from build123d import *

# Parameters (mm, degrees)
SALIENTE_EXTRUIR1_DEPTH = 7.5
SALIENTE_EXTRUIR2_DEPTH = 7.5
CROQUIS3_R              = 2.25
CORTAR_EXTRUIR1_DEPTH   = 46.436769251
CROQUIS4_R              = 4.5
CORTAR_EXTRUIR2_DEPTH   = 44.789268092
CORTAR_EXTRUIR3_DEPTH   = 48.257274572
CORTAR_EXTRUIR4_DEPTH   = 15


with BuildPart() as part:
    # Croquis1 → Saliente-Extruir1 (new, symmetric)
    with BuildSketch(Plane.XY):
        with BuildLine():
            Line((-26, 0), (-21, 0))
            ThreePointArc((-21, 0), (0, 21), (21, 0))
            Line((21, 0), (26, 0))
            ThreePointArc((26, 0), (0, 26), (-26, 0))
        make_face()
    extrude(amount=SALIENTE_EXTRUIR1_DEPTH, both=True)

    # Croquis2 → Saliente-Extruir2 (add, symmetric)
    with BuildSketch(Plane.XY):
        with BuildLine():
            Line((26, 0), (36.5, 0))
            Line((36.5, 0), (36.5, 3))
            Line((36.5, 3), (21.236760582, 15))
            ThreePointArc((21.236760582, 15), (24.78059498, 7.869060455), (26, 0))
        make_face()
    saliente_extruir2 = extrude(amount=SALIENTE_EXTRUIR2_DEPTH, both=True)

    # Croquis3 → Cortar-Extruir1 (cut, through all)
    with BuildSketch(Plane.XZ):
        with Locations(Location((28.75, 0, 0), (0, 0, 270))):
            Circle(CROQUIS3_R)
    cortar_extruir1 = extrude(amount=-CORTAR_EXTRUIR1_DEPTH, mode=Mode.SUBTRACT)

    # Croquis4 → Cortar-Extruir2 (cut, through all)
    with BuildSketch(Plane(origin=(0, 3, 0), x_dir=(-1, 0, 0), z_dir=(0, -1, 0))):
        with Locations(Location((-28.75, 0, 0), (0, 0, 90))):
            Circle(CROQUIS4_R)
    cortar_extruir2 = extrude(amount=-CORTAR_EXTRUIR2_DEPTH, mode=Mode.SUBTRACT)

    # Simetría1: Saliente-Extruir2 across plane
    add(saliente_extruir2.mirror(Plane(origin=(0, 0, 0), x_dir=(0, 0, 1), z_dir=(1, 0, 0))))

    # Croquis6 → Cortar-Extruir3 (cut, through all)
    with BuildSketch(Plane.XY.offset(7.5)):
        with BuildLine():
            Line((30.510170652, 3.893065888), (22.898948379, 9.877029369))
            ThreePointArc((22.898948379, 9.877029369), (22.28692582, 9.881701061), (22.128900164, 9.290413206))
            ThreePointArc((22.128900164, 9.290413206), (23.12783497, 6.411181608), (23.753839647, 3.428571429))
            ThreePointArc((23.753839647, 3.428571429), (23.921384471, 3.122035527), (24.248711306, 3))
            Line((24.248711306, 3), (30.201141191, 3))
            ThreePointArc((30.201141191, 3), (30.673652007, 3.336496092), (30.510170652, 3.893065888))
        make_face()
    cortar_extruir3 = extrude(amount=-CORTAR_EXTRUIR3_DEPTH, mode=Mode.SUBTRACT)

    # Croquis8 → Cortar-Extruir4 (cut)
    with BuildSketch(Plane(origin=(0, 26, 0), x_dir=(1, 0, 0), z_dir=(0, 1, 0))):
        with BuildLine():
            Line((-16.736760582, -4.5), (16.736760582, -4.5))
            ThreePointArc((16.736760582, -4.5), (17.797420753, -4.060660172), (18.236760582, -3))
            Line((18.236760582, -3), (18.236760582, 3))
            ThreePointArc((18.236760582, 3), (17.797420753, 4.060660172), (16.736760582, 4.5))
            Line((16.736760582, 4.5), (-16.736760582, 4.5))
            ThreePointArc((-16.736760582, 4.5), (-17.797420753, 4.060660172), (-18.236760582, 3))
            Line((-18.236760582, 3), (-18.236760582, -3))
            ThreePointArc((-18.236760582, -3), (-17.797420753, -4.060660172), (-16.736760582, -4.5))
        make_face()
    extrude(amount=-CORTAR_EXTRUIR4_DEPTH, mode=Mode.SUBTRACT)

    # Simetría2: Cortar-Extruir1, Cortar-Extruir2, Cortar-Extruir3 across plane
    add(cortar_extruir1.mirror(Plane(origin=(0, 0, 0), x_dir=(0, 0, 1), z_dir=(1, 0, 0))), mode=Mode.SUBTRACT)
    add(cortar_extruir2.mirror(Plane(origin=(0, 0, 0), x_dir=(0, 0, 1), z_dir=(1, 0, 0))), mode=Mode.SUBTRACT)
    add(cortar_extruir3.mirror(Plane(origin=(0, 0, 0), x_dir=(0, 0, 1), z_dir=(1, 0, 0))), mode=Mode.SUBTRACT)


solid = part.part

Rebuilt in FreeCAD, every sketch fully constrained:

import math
import FreeCAD as App
import Part
import Sketcher

V = App.Vector
Q = App.Units.Quantity

doc = App.newDocument("Part")
params = doc.addObject("Spreadsheet::Sheet", "Params")
for row, (alias, value) in enumerate([
    ("sketch1_radius", "21 mm"),
    ("sketch1_radius2", "26 mm"),
    ("pad1_length", "15 mm"),
    ("sketch2_radius", "26 mm"),
    ("sketch2_height", "3 mm"),
    ("sketch2_width", "10.5 mm"),
    ("pad2_length", "15 mm"),
    ("sketch3_diameter", "4.5 mm"),
    ("sketch4_diameter", "9 mm"),
    ("sketch5_radius", "24 mm"),
    ("sketch5_radius2", "0.5 mm"),
    ("sketch6_radius", "1.5 mm"),
    ("sketch6_height", "6 mm"),
    ("pocket4_length", "15 mm"),
], start=1):
    params.set(f"A{row}", alias)
    params.set(f"B{row}", "=" + value)
    params.setAlias(f"B{row}", alias)

body = doc.addObject("PartDesign::Body", "Body")

sketch1 = doc.addObject("Sketcher::SketchObject", "Sketch")
body.addObject(sketch1)
sketch1.AttachmentSupport = (doc.XY_Plane, [""])
sketch1.MapMode = "FlatFace"
sketch1.addGeometry(Part.LineSegment(V(-26, 0, 0), V(-21, 0, 0)), False)
sketch1.addGeometry(Part.ArcOfCircle(Part.Circle(V(0, 0, 0), V(0, 0, 1), 21), math.radians(0), math.radians(180)), False)
sketch1.addGeometry(Part.LineSegment(V(21, 0, 0), V(26, 0, 0)), False)
sketch1.addGeometry(Part.ArcOfCircle(Part.Circle(V(0, 0, 0), V(0, 0, 1), 26), math.radians(0), math.radians(180)), False)
sketch1.addConstraint(Sketcher.Constraint("Coincident", 0, 2, 1, 2))
sketch1.addConstraint(Sketcher.Constraint("Coincident", 1, 1, 2, 1))
sketch1.addConstraint(Sketcher.Constraint("Coincident", 2, 2, 3, 1))
sketch1.addConstraint(Sketcher.Constraint("Coincident", 3, 2, 0, 1))
sketch1.addConstraint(Sketcher.Constraint("Horizontal", 0))
sketch1.addConstraint(Sketcher.Constraint("Horizontal", 2))
sketch1.addConstraint(Sketcher.Constraint("Coincident", 1, 3, -1, 1))
sketch1.addConstraint(Sketcher.Constraint("Coincident", 3, 3, -1, 1))
sketch1.addConstraint(Sketcher.Constraint("PointOnObject", 0, 2, -1))
sketch1.addConstraint(Sketcher.Constraint("PointOnObject", 1, 1, -1))
sketch1.addConstraint(Sketcher.Constraint("Radius", 1, Q("21 mm")))
sketch1.addConstraint(Sketcher.Constraint("Radius", 3, Q("26 mm")))
sketch1.setExpression("Constraints[10]", "Params.sketch1_radius")
sketch1.setExpression("Constraints[11]", "Params.sketch1_radius2")
pad1 = doc.addObject("PartDesign::Pad", "Pad")
body.addObject(pad1)
pad1.Profile = sketch1
pad1.setExpression("Length", "Params.pad1_length")
pad1.Midplane = True

sketch2 = doc.addObject("Sketcher::SketchObject", "Sketch001")
body.addObject(sketch2)
sketch2.AttachmentSupport = (doc.XY_Plane, [""])
sketch2.MapMode = "FlatFace"
sketch2.addGeometry(Part.LineSegment(V(26, 0, 0), V(36.5, 0, 0)), False)
sketch2.addGeometry(Part.LineSegment(V(36.5, 0, 0), V(36.5, 3, 0)), False)
sketch2.addGeometry(Part.LineSegment(V(36.5, 3, 0), V(21.2, 15, 0)), False)
sketch2.addGeometry(Part.ArcOfCircle(Part.Circle(V(0, 0, 0), V(0, 0, 1), 26), math.radians(0), math.radians(35)), False)
sketch2.addConstraint(Sketcher.Constraint("Coincident", 0, 2, 1, 1))
sketch2.addConstraint(Sketcher.Constraint("Coincident", 1, 2, 2, 1))
sketch2.addConstraint(Sketcher.Constraint("Coincident", 2, 2, 3, 2))
sketch2.addConstraint(Sketcher.Constraint("Coincident", 3, 1, 0, 1))
sketch2.addConstraint(Sketcher.Constraint("Horizontal", 0))
sketch2.addConstraint(Sketcher.Constraint("Vertical", 1))
sketch2.addConstraint(Sketcher.Constraint("Coincident", 3, 3, -1, 1))
sketch2.addConstraint(Sketcher.Constraint("PointOnObject", 0, 2, -1))
sketch2.addConstraint(Sketcher.Constraint("Radius", 3, Q("26 mm")))
sketch2.addConstraint(Sketcher.Constraint("DistanceY", 1, 1, 1, 2, Q("3 mm")))
sketch2.addConstraint(Sketcher.Constraint("DistanceX", 0, 1, 0, 2, Q("10.5 mm")))
sketch2.addConstraint(Sketcher.Constraint("DistanceY", -1, 1, 2, 2, Q("15 mm")))
sketch2.setExpression("Constraints[8]", "Params.sketch2_radius")
sketch2.setExpression("Constraints[9]", "Params.sketch2_height")
sketch2.setExpression("Constraints[10]", "Params.sketch2_width")
pad2 = doc.addObject("PartDesign::Pad", "Pad001")
body.addObject(pad2)
pad2.Profile = sketch2
pad2.setExpression("Length", "Params.pad2_length")
pad2.Midplane = True

sketch3 = doc.addObject("Sketcher::SketchObject", "Sketch002")
body.addObject(sketch3)
sketch3.AttachmentSupport = (doc.XZ_Plane, [""])
sketch3.MapMode = "FlatFace"
sketch3.addGeometry(Part.Circle(V(28.8, 0, 0), V(0, 0, 1), 2.2), False)
sketch3.addConstraint(Sketcher.Constraint("PointOnObject", 0, 3, -1))
sketch3.addConstraint(Sketcher.Constraint("Diameter", 0, Q("4.5 mm")))
sketch3.addConstraint(Sketcher.Constraint("DistanceX", -1, 1, 0, 3, Q("28.75 mm")))
sketch3.setExpression("Constraints[1]", "Params.sketch3_diameter")
pocket1 = doc.addObject("PartDesign::Pocket", "Pocket")
body.addObject(pocket1)
pocket1.Profile = sketch3
pocket1.Type = "ThroughAll"

sketch4 = doc.addObject("Sketcher::SketchObject", "Sketch003")
body.addObject(sketch4)
sketch4.AttachmentSupport = (doc.XZ_Plane, [""])
sketch4.MapMode = "FlatFace"
sketch4.AttachmentOffset = App.Placement(V(0, 0, -3), App.Rotation())
sketch4.addGeometry(Part.Circle(V(28.8, 0, 0), V(0, 0, 1), 4.5), False)
sketch4.addConstraint(Sketcher.Constraint("PointOnObject", 0, 3, -1))
sketch4.addConstraint(Sketcher.Constraint("Diameter", 0, Q("9 mm")))
sketch4.addConstraint(Sketcher.Constraint("DistanceX", -1, 1, 0, 3, Q("28.75 mm")))
sketch4.setExpression("Constraints[1]", "Params.sketch4_diameter")
pocket2 = doc.addObject("PartDesign::Pocket", "Pocket001")
body.addObject(pocket2)
pocket2.Profile = sketch4
pocket2.Type = "ThroughAll"
doc.recompute()

mirrored = doc.addObject("PartDesign::Mirrored", "Mirrored")
body.addObject(mirrored)
mirrored.Originals = [pad2]
mirrored.MirrorPlane = (doc.YZ_Plane, [""])
body.Tip = mirrored

sketch5 = doc.addObject("Sketcher::SketchObject", "Sketch004")
body.addObject(sketch5)
sketch5.AttachmentSupport = (doc.XY_Plane, [""])
sketch5.MapMode = "FlatFace"
sketch5.AttachmentOffset = App.Placement(V(0, 0, 7.5), App.Rotation())
sketch5.addGeometry(Part.LineSegment(V(30.5, 3.9, 0), V(22.9, 9.9, 0)), False)
sketch5.addGeometry(Part.ArcOfCircle(Part.Circle(V(22.6, 9.5, 0), V(0, 0, 1), 0.5), math.radians(52), math.radians(203)), False)
sketch5.addGeometry(Part.ArcOfCircle(Part.Circle(V(0, 0, 0), V(0, 0, 1), 24), math.radians(8.21), math.radians(22.77)), False)
sketch5.addGeometry(Part.ArcOfCircle(Part.Circle(V(24.2, 3.5, 0), V(0, 0, 1), 0.5), math.radians(-172), math.radians(-90)), False)
sketch5.addGeometry(Part.LineSegment(V(24.2, 3, 0), V(30.2, 3, 0)), False)
sketch5.addGeometry(Part.ArcOfCircle(Part.Circle(V(30.2, 3.5, 0), V(0, 0, 1), 0.5), math.radians(-90), math.radians(52)), False)
sketch5.addConstraint(Sketcher.Constraint("Tangent", 0, 2, 1, 1))
sketch5.addConstraint(Sketcher.Constraint("Tangent", 1, 2, 2, 2))
sketch5.addConstraint(Sketcher.Constraint("Tangent", 2, 1, 3, 1))
sketch5.addConstraint(Sketcher.Constraint("Tangent", 3, 2, 4, 1))
sketch5.addConstraint(Sketcher.Constraint("Tangent", 4, 2, 5, 1))
sketch5.addConstraint(Sketcher.Constraint("Tangent", 5, 2, 0, 1))
sketch5.addConstraint(Sketcher.Constraint("Horizontal", 4))
sketch5.addConstraint(Sketcher.Constraint("Coincident", 2, 3, -1, 1))
sketch5.addConstraint(Sketcher.Constraint("Equal", 1, 3))
sketch5.addConstraint(Sketcher.Constraint("Equal", 3, 5))
sketch5.addConstraint(Sketcher.Constraint("Radius", 2, Q("24 mm")))
sketch5.addConstraint(Sketcher.Constraint("Radius", 1, Q("0.5 mm")))
sketch5.addConstraint(Sketcher.Constraint("DistanceY", -1, 1, 3, 2, Q("3 mm")))
sketch5.addConstraint(Sketcher.Constraint("DistanceX", 4, 1, 4, 2, Q("5.95243 mm")))
sketch5.addConstraint(Sketcher.Constraint("DistanceX", -1, 1, 1, 2, Q("22.1289 mm")))
sketch5.setExpression("Constraints[10]", "Params.sketch5_radius")
sketch5.setExpression("Constraints[11]", "Params.sketch5_radius2")
pocket3 = doc.addObject("PartDesign::Pocket", "Pocket002")
body.addObject(pocket3)
pocket3.Profile = sketch5
pocket3.Type = "ThroughAll"

sketch6 = doc.addObject("Sketcher::SketchObject", "Sketch005")
body.addObject(sketch6)
sketch6.AttachmentSupport = (doc.XZ_Plane, [""])
sketch6.MapMode = "FlatFace"
sketch6.AttachmentOffset = App.Placement(V(0, 0, -26), App.Rotation())
sketch6.addGeometry(Part.LineSegment(V(-16.7, 4.5, 0), V(16.7, 4.5, 0)), False)
sketch6.addGeometry(Part.ArcOfCircle(Part.Circle(V(16.7, 3, 0), V(0, 0, 1), 1.5), math.radians(0), math.radians(90)), False)
sketch6.addGeometry(Part.LineSegment(V(18.2, 3, 0), V(18.2, -3, 0)), False)
sketch6.addGeometry(Part.ArcOfCircle(Part.Circle(V(16.7, -3, 0), V(0, 0, 1), 1.5), math.radians(-90), math.radians(0)), False)
sketch6.addGeometry(Part.LineSegment(V(16.7, -4.5, 0), V(-16.7, -4.5, 0)), False)
sketch6.addGeometry(Part.ArcOfCircle(Part.Circle(V(-16.7, -3, 0), V(0, 0, 1), 1.5), math.radians(-180), math.radians(-90)), False)
sketch6.addGeometry(Part.LineSegment(V(-18.2, -3, 0), V(-18.2, 3, 0)), False)
sketch6.addGeometry(Part.ArcOfCircle(Part.Circle(V(-16.7, 3, 0), V(0, 0, 1), 1.5), math.radians(90), math.radians(180)), False)
sketch6.addConstraint(Sketcher.Constraint("Tangent", 0, 2, 1, 2))
sketch6.addConstraint(Sketcher.Constraint("Tangent", 1, 1, 2, 1))
sketch6.addConstraint(Sketcher.Constraint("Tangent", 2, 2, 3, 2))
sketch6.addConstraint(Sketcher.Constraint("Tangent", 3, 1, 4, 1))
sketch6.addConstraint(Sketcher.Constraint("Tangent", 4, 2, 5, 2))
sketch6.addConstraint(Sketcher.Constraint("Tangent", 5, 1, 6, 1))
sketch6.addConstraint(Sketcher.Constraint("Tangent", 6, 2, 7, 2))
sketch6.addConstraint(Sketcher.Constraint("Tangent", 7, 1, 0, 1))
sketch6.addConstraint(Sketcher.Constraint("Horizontal", 0))
sketch6.addConstraint(Sketcher.Constraint("Vertical", 2))
sketch6.addConstraint(Sketcher.Constraint("Horizontal", 4))
sketch6.addConstraint(Sketcher.Constraint("Vertical", 6))
sketch6.addConstraint(Sketcher.Constraint("Equal", 1, 3))
sketch6.addConstraint(Sketcher.Constraint("Equal", 3, 5))
sketch6.addConstraint(Sketcher.Constraint("Equal", 5, 7))
sketch6.addConstraint(Sketcher.Constraint("Symmetric", 1, 3, 5, 3, -1, 1))
sketch6.addConstraint(Sketcher.Constraint("Radius", 1, Q("1.5 mm")))
sketch6.addConstraint(Sketcher.Constraint("DistanceY", 2, 2, 2, 1, Q("6 mm")))
sketch6.addConstraint(Sketcher.Constraint("DistanceX", 0, 1, 0, 2, Q("33.473521 mm")))
sketch6.setExpression("Constraints[16]", "Params.sketch6_radius")
sketch6.setExpression("Constraints[17]", "Params.sketch6_height")
pocket4 = doc.addObject("PartDesign::Pocket", "Pocket003")
body.addObject(pocket4)
pocket4.Profile = sketch6
pocket4.setExpression("Length", "Params.pocket4_length")
pocket4.Reversed = True
doc.recompute()

mirrored2 = doc.addObject("PartDesign::Mirrored", "Mirrored001")
body.addObject(mirrored2)
mirrored2.Originals = [pocket1, pocket2, pocket3]
mirrored2.MirrorPlane = (doc.YZ_Plane, [""])
body.Tip = mirrored2

doc.recompute()
